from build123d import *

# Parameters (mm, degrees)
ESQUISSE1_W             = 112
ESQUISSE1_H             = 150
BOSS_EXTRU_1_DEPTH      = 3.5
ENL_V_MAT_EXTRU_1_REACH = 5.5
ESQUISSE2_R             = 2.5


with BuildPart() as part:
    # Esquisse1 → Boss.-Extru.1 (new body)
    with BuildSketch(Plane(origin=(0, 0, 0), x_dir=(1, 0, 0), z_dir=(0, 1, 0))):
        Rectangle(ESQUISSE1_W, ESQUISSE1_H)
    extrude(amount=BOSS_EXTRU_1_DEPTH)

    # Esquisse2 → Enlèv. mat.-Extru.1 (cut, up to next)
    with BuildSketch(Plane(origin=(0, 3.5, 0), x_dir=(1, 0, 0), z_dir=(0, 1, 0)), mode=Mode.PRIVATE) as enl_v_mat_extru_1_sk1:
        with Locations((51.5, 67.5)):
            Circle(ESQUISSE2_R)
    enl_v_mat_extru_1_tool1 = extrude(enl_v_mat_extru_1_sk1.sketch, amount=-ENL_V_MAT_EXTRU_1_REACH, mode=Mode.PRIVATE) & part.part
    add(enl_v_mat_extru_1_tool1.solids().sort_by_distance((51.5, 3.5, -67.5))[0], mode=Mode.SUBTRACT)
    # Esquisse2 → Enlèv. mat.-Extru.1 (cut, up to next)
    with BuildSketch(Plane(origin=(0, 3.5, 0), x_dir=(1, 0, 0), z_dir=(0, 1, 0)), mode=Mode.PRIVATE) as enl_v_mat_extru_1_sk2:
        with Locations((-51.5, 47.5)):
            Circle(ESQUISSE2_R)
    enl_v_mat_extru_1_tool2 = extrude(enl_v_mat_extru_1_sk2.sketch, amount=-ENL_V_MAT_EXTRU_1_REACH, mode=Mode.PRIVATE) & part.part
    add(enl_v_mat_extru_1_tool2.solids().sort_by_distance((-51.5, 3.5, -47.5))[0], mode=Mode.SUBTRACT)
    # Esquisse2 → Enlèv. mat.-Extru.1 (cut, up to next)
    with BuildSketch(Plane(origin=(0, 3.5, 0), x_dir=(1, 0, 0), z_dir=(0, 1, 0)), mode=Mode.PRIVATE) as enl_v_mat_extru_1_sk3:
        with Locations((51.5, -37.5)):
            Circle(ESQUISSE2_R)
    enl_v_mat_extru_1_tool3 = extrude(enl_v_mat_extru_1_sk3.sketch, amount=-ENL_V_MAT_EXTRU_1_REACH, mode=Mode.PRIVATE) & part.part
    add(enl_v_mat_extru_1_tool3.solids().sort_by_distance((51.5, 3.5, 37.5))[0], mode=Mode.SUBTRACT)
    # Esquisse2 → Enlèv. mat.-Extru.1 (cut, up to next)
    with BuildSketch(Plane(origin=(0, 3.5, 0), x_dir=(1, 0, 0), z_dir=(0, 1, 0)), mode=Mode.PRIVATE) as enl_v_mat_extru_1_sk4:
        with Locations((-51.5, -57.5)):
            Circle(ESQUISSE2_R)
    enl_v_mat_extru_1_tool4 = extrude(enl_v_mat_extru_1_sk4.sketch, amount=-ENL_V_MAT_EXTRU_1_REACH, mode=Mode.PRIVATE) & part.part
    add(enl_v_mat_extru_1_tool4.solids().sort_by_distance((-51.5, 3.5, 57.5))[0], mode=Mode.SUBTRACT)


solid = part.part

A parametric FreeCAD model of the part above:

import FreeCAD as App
import Part
import Sketcher

V = App.Vector
Q = App.Units.Quantity


def add_polygon(sketch, points):
    """Adds a closed chain of lines whose ends are joined by coincident constraints."""
    first, n = sketch.GeometryCount, len(points)
    for a, b in zip(points, points[1:] + points[:1]):
        sketch.addGeometry(Part.LineSegment(App.Vector(*a, 0), App.Vector(*b, 0)), False)
    for i in range(n):
        sketch.addConstraint(Sketcher.Constraint("Coincident", first + i, 2, first + (i + 1) % n, 1))

doc = App.newDocument("Part")
body = doc.addObject("PartDesign::Body", "Body")

sketch1 = body.newObject("Sketcher::SketchObject", "Sketch")
sketch1.AttachmentSupport = (doc.getObject("XZ_Plane"), [""])
sketch1.MapMode = "FlatFace"
add_polygon(sketch1, [(-56, -75), (-56, 75), (56, 75), (56, -75)])
sketch1.addConstraint(Sketcher.Constraint("Vertical", 0))
sketch1.addConstraint(Sketcher.Constraint("Horizontal", 1))
sketch1.addConstraint(Sketcher.Constraint("Vertical", 2))
sketch1.addConstraint(Sketcher.Constraint("Horizontal", 3))
sketch1.addConstraint(Sketcher.Constraint("Symmetric", 0, 2, 2, 2, -1, 1))
sketch1.addConstraint(Sketcher.Constraint("DistanceX", 1, 1, 1, 2, Q("112 mm")))
sketch1.addConstraint(Sketcher.Constraint("DistanceY", 0, 1, 0, 2, Q("150 mm")))
pad1 = body.newObject("PartDesign::Pad", "Pad")
pad1.Profile = sketch1
pad1.Length = 3.5
pad1.Reversed = True

sketch2 = body.newObject("Sketcher::SketchObject", "Sketch001")
sketch2.AttachmentSupport = (doc.getObject("XZ_Plane"), [""])
sketch2.MapMode = "FlatFace"
sketch2.AttachmentOffset = App.Placement(V(0, 0, -3.5), App.Rotation())
sketch2.addGeometry(Part.Circle(V(51.5, -67.5, 0), V(0, 0, 1), 2.5), False)
sketch2.addConstraint(Sketcher.Constraint("Diameter", 0, Q("5 mm")))
sketch2.addConstraint(Sketcher.Constraint("DistanceX", -1, 1, 0, 3, Q("51.5 mm")))
sketch2.addConstraint(Sketcher.Constraint("DistanceY", 0, 3, -1, 1, Q("67.5 mm")))
pocket1 = body.newObject("PartDesign::Pocket", "Pocket")
pocket1.Profile = sketch2
pocket1.Type = "UpToFirst"
pocket1.Reversed = True

sketch3 = body.newObject("Sketcher::SketchObject", "Sketch002")
sketch3.AttachmentSupport = (doc.getObject("XZ_Plane"), [""])
sketch3.MapMode = "FlatFace"
sketch3.AttachmentOffset = App.Placement(V(0, 0, -3.5), App.Rotation())
sketch3.addGeometry(Part.Circle(V(-51.5, -47.5, 0), V(0, 0, 1), 2.5), False)
sketch3.addConstraint(Sketcher.Constraint("Diameter", 0, Q("5 mm")))
sketch3.addConstraint(Sketcher.Constraint("DistanceX", 0, 3, -1, 1, Q("51.5 mm")))
sketch3.addConstraint(Sketcher.Constraint("DistanceY", 0, 3, -1, 1, Q("47.5 mm")))
pocket2 = body.newObject("PartDesign::Pocket", "Pocket001")
pocket2.Profile = sketch3
pocket2.Type = "UpToFirst"
pocket2.Reversed = True

sketch4 = body.newObject("Sketcher::SketchObject", "Sketch003")
sketch4.AttachmentSupport = (doc.getObject("XZ_Plane"), [""])
sketch4.MapMode = "FlatFace"
sketch4.AttachmentOffset = App.Placement(V(0, 0, -3.5), App.Rotation())
sketch4.addGeometry(Part.Circle(V(51.5, 37.5, 0), V(0, 0, 1), 2.5), False)
sketch4.addConstraint(Sketcher.Constraint("Diameter", 0, Q("5 mm")))
sketch4.addConstraint(Sketcher.Constraint("DistanceX", -1, 1, 0, 3, Q("51.5 mm")))
sketch4.addConstraint(Sketcher.Constraint("DistanceY", -1, 1, 0, 3, Q("37.5 mm")))
pocket3 = body.newObject("PartDesign::Pocket", "Pocket002")
pocket3.Profile = sketch4
pocket3.Type = "UpToFirst"
pocket3.Reversed = True

sketch5 = body.newObject("Sketcher::SketchObject", "Sketch004")
sketch5.AttachmentSupport = (doc.getObject("XZ_Plane"), [""])
sketch5.MapMode = "FlatFace"
sketch5.AttachmentOffset = App.Placement(V(0, 0, -3.5), App.Rotation())
sketch5.addGeometry(Part.Circle(V(-51.5, 57.5, 0), V(0, 0, 1), 2.5), False)
sketch5.addConstraint(Sketcher.Constraint("Diameter", 0, Q("5 mm")))
sketch5.addConstraint(Sketcher.Constraint("DistanceX", 0, 3, -1, 1, Q("51.5 mm")))
sketch5.addConstraint(Sketcher.Constraint("DistanceY", -1, 1, 0, 3, Q("57.5 mm")))
pocket4 = body.newObject("PartDesign::Pocket", "Pocket003")
pocket4.Profile = sketch5
pocket4.Type = "UpToFirst"
pocket4.Reversed = True

doc.recompute()
